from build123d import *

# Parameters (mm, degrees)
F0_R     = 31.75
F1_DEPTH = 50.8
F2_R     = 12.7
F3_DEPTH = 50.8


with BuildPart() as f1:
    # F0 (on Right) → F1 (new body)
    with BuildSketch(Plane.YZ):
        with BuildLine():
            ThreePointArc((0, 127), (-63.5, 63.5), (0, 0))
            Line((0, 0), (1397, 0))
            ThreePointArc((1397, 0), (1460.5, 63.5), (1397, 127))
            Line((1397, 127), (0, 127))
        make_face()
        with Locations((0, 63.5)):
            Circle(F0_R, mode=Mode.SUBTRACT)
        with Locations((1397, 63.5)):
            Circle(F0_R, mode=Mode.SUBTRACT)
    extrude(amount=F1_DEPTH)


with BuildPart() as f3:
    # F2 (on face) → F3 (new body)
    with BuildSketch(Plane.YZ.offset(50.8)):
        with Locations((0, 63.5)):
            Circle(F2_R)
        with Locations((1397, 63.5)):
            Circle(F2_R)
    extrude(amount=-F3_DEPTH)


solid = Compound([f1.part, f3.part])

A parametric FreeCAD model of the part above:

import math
import FreeCAD as App
import Part
import Sketcher
from FreeCAD import Vector
Q = App.Units.Quantity

doc = App.newDocument("Part")
body = doc.addObject("PartDesign::Body", "Body")

# Sketch on YZ plane
sketch1 = body.newObject("Sketcher::SketchObject", "Sketch")
sketch1.AttachmentSupport = (doc.getObject("YZ_Plane"), [""])
sketch1.MapMode = "FlatFace"
sketch1.addGeometry(Part.ArcOfCircle(Part.Circle(Vector(0, 64, 0), Vector(0, 0, 1), 64), math.radians(90), math.radians(270)), False)
sketch1.addGeometry(Part.LineSegment(Vector(0, 0, 0), Vector(1397, 0, 0)), False)
sketch1.addGeometry(Part.ArcOfCircle(Part.Circle(Vector(1397, 64, 0), Vector(0, 0, 1), 64), math.radians(-90), math.radians(90)), False)
sketch1.addGeometry(Part.LineSegment(Vector(1397, 127, 0), Vector(0, 127, 0)), False)
sketch1.addGeometry(Part.Circle(Vector(0, 64, 0), Vector(0, 0, 1), 32), False)
sketch1.addGeometry(Part.Circle(Vector(1397, 64, 0), Vector(0, 0, 1), 32), False)
sketch1.addConstraint(Sketcher.Constraint("Tangent", 0, 2, 1, 1))
sketch1.addConstraint(Sketcher.Constraint("Tangent", 1, 2, 2, 1))
sketch1.addConstraint(Sketcher.Constraint("Tangent", 2, 2, 3, 1))
sketch1.addConstraint(Sketcher.Constraint("Tangent", 3, 2, 0, 1))
sketch1.addConstraint(Sketcher.Constraint("Horizontal", 1))
sketch1.addConstraint(Sketcher.Constraint("Horizontal", 3))
sketch1.addConstraint(Sketcher.Constraint("Coincident", 0, 2, -1, 1))
sketch1.addConstraint(Sketcher.Constraint("Coincident", 4, 3, 0, 3))
sketch1.addConstraint(Sketcher.Constraint("Coincident", 5, 3, 2, 3))
sketch1.addConstraint(Sketcher.Constraint("Equal", 4, 5))
sketch1.addConstraint(Sketcher.Constraint("Diameter", 4, Q("2.5 in")))
sketch1.addConstraint(Sketcher.Constraint("Radius", 0, Q("2.5 in")))
sketch1.addConstraint(Sketcher.Constraint("DistanceX", 1, 1, 1, 2, Q("55 in")))
pad1 = body.newObject("PartDesign::Pad", "Pad")
pad1.Profile = sketch1
pad1.Length = Q("2 in")
body2 = doc.addObject("PartDesign::Body", "Body001")
body2.AllowCompound = True

# Sketch on YZ plane
sketch2 = body2.newObject("Sketcher::SketchObject", "Sketch001")
sketch2.AttachmentSupport = (doc.getObject("YZ_Plane001"), [""])
sketch2.MapMode = "FlatFace"
sketch2.AttachmentOffset = App.Placement(Vector(0, 0, 2 * 25.4), App.Rotation())
sketch2.addGeometry(Part.Circle(Vector(0, 64, 0), Vector(0, 0, 1), 13), False)
sketch2.addGeometry(Part.Circle(Vector(1397, 64, 0), Vector(0, 0, 1), 13), False)
sketch2.addConstraint(Sketcher.Constraint("Equal", 0, 1))
sketch2.addConstraint(Sketcher.Constraint("PointOnObject", 0, 3, -2))
sketch2.addConstraint(Sketcher.Constraint("Horizontal", 0, 3, 1, 3))
sketch2.addConstraint(Sketcher.Constraint("Diameter", 0, Q("1 in")))
sketch2.addConstraint(Sketcher.Constraint("DistanceX", -1, 1, 1, 3, Q("55 in")))
sketch2.addConstraint(Sketcher.Constraint("DistanceY", -1, 1, 0, 3, Q("2.5 in")))
pad2 = body2.newObject("PartDesign::Pad", "Pad001")
pad2.Profile = sketch2
pad2.Length = Q("2 in")
pad2.Reversed = True

doc.recompute()
